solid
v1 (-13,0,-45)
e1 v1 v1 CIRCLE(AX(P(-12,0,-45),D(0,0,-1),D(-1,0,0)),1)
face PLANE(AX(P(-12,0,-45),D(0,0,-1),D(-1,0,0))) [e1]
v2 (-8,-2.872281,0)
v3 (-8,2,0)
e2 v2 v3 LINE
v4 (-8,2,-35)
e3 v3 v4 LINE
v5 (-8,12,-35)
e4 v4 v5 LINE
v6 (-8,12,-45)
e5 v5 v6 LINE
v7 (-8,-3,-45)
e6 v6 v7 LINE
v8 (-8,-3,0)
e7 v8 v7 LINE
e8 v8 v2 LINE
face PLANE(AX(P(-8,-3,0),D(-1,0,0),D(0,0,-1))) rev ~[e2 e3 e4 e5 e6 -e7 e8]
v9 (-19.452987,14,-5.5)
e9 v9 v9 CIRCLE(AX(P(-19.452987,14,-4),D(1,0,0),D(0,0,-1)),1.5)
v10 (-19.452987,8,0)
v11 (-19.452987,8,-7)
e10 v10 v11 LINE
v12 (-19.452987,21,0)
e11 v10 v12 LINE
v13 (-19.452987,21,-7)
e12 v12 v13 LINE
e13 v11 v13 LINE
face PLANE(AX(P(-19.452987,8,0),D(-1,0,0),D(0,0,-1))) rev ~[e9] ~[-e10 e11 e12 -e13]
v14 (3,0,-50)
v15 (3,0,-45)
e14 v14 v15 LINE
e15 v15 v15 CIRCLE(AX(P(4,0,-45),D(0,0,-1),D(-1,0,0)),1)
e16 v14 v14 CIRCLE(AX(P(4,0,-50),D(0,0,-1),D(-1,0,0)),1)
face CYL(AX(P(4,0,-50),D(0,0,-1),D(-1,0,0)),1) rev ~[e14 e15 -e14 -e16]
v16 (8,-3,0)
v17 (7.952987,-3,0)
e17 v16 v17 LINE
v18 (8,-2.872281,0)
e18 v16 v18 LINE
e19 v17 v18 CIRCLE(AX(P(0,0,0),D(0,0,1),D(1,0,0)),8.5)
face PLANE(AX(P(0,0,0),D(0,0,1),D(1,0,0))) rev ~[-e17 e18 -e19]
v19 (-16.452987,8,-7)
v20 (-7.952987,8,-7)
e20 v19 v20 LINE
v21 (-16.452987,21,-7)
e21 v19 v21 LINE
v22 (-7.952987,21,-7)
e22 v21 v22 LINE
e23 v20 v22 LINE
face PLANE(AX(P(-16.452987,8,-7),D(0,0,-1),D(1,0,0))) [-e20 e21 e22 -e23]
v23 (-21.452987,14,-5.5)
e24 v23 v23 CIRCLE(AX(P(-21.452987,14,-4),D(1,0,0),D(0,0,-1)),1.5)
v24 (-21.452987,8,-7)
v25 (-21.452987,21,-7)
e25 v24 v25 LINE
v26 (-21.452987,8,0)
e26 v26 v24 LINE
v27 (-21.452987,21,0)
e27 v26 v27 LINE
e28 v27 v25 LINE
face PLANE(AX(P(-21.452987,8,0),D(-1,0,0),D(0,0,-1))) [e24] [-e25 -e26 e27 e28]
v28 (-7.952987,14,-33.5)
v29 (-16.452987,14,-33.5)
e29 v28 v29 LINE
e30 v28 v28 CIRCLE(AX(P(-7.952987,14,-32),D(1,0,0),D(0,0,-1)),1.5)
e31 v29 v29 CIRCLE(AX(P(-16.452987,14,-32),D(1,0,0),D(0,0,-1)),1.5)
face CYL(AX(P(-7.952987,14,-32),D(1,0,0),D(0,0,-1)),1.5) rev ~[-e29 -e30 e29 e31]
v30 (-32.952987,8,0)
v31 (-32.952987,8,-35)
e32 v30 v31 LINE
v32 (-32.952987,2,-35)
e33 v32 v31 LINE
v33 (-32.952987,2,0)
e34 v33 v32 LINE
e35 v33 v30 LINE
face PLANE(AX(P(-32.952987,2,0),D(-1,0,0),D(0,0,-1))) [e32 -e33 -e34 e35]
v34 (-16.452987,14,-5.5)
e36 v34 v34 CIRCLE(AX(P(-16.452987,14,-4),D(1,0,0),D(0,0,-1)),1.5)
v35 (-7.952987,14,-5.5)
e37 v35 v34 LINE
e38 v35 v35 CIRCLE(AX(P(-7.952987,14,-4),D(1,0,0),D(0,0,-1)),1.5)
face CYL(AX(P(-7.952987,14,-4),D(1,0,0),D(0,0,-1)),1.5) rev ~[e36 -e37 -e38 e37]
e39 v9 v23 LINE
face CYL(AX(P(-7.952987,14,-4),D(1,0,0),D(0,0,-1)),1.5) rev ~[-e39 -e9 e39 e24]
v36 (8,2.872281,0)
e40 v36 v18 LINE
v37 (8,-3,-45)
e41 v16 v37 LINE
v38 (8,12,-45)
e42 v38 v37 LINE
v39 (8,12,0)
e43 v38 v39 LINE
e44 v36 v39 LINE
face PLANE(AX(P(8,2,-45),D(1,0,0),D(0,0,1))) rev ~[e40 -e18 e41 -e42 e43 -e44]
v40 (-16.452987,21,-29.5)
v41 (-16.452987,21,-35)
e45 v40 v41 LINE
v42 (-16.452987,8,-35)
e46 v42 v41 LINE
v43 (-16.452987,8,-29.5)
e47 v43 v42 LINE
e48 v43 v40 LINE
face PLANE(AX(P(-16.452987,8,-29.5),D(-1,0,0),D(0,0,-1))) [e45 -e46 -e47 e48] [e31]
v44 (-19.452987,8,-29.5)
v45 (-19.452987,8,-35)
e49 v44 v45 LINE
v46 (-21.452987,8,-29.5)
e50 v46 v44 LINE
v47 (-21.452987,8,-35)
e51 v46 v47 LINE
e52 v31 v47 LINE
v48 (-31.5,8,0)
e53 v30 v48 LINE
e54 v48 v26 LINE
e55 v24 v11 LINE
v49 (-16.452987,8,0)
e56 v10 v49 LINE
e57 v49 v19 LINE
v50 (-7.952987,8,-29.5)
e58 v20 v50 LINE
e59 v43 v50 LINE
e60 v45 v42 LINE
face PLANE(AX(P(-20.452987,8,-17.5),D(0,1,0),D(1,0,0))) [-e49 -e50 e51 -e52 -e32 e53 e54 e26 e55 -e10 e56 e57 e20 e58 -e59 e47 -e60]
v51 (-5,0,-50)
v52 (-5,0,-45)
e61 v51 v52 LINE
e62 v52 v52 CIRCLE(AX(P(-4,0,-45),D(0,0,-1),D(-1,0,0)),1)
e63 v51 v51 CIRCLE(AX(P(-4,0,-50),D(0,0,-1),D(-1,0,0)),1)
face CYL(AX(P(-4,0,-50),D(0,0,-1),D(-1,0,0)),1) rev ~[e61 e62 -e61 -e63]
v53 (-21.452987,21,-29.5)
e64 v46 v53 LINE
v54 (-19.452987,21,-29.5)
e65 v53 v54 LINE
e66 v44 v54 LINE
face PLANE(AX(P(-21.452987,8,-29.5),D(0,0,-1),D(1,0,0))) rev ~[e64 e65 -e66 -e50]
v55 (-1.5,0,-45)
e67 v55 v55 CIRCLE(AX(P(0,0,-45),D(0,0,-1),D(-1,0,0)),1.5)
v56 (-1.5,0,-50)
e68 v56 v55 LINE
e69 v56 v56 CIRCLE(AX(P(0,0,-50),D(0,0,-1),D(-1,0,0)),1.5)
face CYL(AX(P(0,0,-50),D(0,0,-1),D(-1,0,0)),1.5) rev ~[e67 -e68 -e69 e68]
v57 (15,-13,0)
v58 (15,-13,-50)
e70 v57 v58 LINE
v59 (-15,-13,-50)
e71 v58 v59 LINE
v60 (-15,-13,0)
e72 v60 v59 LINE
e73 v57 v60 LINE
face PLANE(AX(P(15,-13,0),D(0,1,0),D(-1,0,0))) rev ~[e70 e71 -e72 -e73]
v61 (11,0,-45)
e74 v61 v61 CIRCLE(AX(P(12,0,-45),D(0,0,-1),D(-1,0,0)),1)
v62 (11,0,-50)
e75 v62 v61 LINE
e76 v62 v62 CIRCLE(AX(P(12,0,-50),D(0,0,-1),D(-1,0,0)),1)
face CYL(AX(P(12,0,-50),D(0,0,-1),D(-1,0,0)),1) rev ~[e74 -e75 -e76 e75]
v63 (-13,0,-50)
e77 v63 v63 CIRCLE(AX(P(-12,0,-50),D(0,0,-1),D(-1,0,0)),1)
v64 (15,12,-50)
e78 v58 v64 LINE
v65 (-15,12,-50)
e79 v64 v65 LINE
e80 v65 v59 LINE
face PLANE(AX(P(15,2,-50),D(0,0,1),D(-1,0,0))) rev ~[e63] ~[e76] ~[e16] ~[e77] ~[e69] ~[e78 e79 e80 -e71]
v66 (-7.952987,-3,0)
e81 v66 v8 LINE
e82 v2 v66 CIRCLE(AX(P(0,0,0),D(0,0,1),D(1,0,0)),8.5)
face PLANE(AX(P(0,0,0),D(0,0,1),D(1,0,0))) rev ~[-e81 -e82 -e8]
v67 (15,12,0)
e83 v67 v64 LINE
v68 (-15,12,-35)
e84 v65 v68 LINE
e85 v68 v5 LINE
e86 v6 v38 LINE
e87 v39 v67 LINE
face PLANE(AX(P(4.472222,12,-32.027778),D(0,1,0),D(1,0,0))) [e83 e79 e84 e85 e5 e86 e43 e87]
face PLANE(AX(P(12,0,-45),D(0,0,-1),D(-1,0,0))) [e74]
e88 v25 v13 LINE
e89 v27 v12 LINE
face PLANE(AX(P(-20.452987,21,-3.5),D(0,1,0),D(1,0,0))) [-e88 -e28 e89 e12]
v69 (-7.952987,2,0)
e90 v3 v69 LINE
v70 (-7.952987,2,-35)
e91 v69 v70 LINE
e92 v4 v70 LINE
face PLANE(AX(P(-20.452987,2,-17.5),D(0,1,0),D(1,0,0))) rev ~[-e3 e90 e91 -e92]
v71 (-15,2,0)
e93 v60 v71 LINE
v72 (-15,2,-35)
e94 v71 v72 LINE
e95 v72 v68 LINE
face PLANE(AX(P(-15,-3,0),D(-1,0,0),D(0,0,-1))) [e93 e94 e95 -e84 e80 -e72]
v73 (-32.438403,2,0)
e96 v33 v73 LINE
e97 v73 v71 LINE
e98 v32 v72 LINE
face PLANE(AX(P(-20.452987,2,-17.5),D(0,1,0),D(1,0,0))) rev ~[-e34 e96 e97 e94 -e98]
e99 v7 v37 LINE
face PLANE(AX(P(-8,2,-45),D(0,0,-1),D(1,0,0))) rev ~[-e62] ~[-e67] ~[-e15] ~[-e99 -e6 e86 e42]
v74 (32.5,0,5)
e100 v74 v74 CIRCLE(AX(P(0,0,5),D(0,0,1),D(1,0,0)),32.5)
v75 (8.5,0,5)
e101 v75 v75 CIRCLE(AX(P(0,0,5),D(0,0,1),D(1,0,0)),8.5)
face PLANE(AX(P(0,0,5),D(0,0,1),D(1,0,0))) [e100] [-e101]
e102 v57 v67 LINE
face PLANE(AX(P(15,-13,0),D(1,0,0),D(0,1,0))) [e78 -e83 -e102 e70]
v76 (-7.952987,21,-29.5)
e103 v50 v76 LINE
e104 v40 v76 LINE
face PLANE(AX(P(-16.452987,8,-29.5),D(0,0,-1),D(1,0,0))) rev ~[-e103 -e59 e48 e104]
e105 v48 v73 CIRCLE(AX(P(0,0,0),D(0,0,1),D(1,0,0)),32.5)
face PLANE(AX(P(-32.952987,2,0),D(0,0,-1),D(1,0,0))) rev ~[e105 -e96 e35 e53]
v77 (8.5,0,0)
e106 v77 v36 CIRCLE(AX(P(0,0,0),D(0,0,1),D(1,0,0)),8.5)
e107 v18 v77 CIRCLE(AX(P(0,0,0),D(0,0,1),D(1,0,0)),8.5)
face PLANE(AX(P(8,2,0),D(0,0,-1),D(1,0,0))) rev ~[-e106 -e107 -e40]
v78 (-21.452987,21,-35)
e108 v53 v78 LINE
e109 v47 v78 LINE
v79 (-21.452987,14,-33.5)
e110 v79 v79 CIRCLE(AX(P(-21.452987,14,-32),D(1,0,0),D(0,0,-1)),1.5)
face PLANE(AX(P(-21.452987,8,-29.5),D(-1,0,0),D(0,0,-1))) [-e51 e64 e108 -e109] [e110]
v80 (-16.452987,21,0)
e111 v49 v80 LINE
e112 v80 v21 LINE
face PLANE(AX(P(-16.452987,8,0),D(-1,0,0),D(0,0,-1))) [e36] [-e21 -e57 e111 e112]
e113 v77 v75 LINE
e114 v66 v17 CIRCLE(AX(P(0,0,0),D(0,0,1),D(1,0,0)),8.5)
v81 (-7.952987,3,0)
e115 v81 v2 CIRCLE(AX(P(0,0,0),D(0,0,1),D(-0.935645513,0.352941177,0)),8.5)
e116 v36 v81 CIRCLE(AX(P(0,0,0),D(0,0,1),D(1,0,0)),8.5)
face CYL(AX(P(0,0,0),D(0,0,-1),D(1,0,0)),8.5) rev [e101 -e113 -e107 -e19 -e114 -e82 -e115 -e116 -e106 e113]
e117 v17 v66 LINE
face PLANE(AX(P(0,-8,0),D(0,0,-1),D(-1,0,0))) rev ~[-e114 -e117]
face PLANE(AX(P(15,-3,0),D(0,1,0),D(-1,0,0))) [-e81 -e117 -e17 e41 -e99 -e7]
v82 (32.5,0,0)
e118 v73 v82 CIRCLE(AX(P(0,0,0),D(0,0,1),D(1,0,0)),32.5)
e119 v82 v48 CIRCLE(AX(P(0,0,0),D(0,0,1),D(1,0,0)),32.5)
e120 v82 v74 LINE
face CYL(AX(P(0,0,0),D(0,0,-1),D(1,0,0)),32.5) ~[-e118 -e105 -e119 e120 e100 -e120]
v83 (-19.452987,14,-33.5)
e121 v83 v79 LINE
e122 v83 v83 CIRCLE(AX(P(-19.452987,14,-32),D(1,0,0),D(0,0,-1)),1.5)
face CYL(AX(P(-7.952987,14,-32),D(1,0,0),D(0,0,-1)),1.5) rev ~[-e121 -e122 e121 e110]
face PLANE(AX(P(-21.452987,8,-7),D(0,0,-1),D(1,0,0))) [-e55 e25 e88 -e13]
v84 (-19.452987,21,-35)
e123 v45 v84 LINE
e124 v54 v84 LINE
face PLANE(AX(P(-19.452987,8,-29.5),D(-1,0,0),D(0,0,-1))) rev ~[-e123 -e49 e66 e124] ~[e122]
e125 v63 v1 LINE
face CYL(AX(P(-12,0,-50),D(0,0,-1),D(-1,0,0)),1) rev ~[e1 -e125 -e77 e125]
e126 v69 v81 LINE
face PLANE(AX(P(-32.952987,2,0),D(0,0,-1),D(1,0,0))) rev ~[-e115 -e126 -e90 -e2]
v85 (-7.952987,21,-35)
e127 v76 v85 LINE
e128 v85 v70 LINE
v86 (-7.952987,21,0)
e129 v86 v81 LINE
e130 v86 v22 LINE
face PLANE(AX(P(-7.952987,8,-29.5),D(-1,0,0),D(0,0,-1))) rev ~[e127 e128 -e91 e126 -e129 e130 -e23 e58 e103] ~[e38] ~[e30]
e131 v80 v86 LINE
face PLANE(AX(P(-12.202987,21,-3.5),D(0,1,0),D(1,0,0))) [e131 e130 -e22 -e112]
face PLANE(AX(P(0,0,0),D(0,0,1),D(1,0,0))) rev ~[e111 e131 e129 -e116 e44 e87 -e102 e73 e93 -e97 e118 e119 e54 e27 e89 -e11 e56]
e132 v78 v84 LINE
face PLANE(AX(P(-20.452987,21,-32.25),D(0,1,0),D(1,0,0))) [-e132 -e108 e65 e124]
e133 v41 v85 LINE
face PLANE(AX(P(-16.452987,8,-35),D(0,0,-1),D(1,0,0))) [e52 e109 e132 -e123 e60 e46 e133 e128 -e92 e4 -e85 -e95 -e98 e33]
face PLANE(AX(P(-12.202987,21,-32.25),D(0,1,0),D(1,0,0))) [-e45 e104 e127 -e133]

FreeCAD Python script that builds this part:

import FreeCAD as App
import Part
import Sketcher
from FreeCAD import Vector


def add_polygon(sketch, points):
    """Adds a closed chain of lines whose ends are joined by coincident constraints."""
    first, n = sketch.GeometryCount, len(points)
    for a, b in zip(points, points[1:] + points[:1]):
        sketch.addGeometry(Part.LineSegment(App.Vector(*a, 0), App.Vector(*b, 0)), False)
    for i in range(n):
        sketch.addConstraint(Sketcher.Constraint("Coincident", first + i, 2, first + (i + 1) % n, 1))

doc = App.newDocument("Part")
body = doc.addObject("PartDesign::Body", "Body")

# Sketch on XY plane
sketch1 = body.newObject("Sketcher::SketchObject", "Sketch")
sketch1.AttachmentSupport = (doc.getObject("XY_Plane"), [""])
sketch1.MapMode = "FlatFace"
sketch1.addGeometry(Part.Circle(Vector(0, 0, 0), Vector(0, 0, 1), 32), False)
sketch1.addGeometry(Part.Circle(Vector(0, 0, 0), Vector(0, 0, 1), 8), False)
sketch1.addConstraint(Sketcher.Constraint("Coincident", 0, 3, -1, 1))
sketch1.addConstraint(Sketcher.Constraint("Coincident", 1, 3, -1, 1))
sketch1.addConstraint(Sketcher.Constraint("Diameter", 0, 65.0))
sketch1.addConstraint(Sketcher.Constraint("Diameter", 1, 17.0))
pad1 = body.newObject("PartDesign::Pad", "Pad")
pad1.Profile = sketch1
pad1.Length = 5

# Sketch on XY plane
sketch2 = body.newObject("Sketcher::SketchObject", "Sketch001")
sketch2.AttachmentSupport = (doc.getObject("XY_Plane"), [""])
sketch2.MapMode = "FlatFace"
add_polygon(sketch2, [(15, -3), (15, -13), (-15, -13), (-15, -3)])  # lines 0-3
sketch2.addConstraint(Sketcher.Constraint("Vertical", 0))
sketch2.addConstraint(Sketcher.Constraint("Horizontal", 1))
sketch2.addConstraint(Sketcher.Constraint("Vertical", 2))
sketch2.addConstraint(Sketcher.Constraint("Horizontal", 3))
sketch2.addConstraint(Sketcher.Constraint("DistanceX", 1, 2, 1, 1, 30.0))
sketch2.addConstraint(Sketcher.Constraint("DistanceY", 0, 2, 0, 1, 10.0))
sketch2.addConstraint(Sketcher.Constraint("DistanceX", -1, 1, 0, 2, 15.0))
sketch2.addConstraint(Sketcher.Constraint("DistanceY", 0, 2, -1, 1, 13.0))
pad2 = body.newObject("PartDesign::Pad", "Pad001")
pad2.Profile = sketch2
pad2.Length = 50
pad2.Reversed = True

# Sketch on XZ plane
sketch3 = body.newObject("Sketcher::SketchObject", "Sketch002")
sketch3.AttachmentSupport = (doc.getObject("XZ_Plane"), [""])
sketch3.MapMode = "FlatFace"
sketch3.AttachmentOffset = App.Placement(Vector(0, 0, 3), App.Rotation())
add_polygon(sketch3, [(-15, -50), (-15, 0), (-8, 0), (-8, -50)])  # lines 0-3
add_polygon(sketch3, [(8, -50), (8, 0), (15, 0), (15, -50)])  # lines 4-7
sketch3.addConstraint(Sketcher.Constraint("Vertical", 0))
sketch3.addConstraint(Sketcher.Constraint("Horizontal", 1))
sketch3.addConstraint(Sketcher.Constraint("Vertical", 2))
sketch3.addConstraint(Sketcher.Constraint("Horizontal", 3))
sketch3.addConstraint(Sketcher.Constraint("Vertical", 4))
sketch3.addConstraint(Sketcher.Constraint("Horizontal", 5))
sketch3.addConstraint(Sketcher.Constraint("Vertical", 6))
sketch3.addConstraint(Sketcher.Constraint("Horizontal", 7))
sketch3.addConstraint(Sketcher.Constraint("Symmetric", 1, 2, 4, 2, -1, 1))
sketch3.addConstraint(Sketcher.Constraint("Symmetric", 0, 2, 5, 2, -2))
sketch3.addConstraint(Sketcher.Constraint("Horizontal", 3, 2, 6, 2))
sketch3.addConstraint(Sketcher.Constraint("DistanceX", 1, 1, 1, 2, 7.0))
sketch3.addConstraint(Sketcher.Constraint("DistanceY", 0, 1, 0, 2, 50.0))
sketch3.addConstraint(Sketcher.Constraint("DistanceX", 0, 2, -1, 1, 15.0))
pad3 = body.newObject("PartDesign::Pad", "Pad002")
pad3.Profile = sketch3
pad3.Length = 5
pad3.Reversed = True

# Sketch on XZ plane
sketch4 = body.newObject("Sketcher::SketchObject", "Sketch003")
sketch4.AttachmentSupport = (doc.getObject("XZ_Plane"), [""])
sketch4.MapMode = "FlatFace"
sketch4.AttachmentOffset = App.Placement(Vector(0, 0, -2), App.Rotation())
add_polygon(sketch4, [(-33, -35), (-33, 0), (-8, 0), (-8, -35)])  # lines 0-3
sketch4.addConstraint(Sketcher.Constraint("Vertical", 0))
sketch4.addConstraint(Sketcher.Constraint("Horizontal", 1))
sketch4.addConstraint(Sketcher.Constraint("Vertical", 2))
sketch4.addConstraint(Sketcher.Constraint("Horizontal", 3))
sketch4.addConstraint(Sketcher.Constraint("PointOnObject", 0, 2, -1))
sketch4.addConstraint(Sketcher.Constraint("DistanceX", 1, 1, 1, 2, 25.0))
sketch4.addConstraint(Sketcher.Constraint("DistanceY", 0, 1, 0, 2, 35.0))
sketch4.addConstraint(Sketcher.Constraint("DistanceX", 0, 2, -1, 1, 32.952987))
pad4 = body.newObject("PartDesign::Pad", "Pad003")
pad4.Profile = sketch4
pad4.Length = 6
pad4.Reversed = True

# Sketch on XZ plane
sketch5 = body.newObject("Sketcher::SketchObject", "Sketch004")
sketch5.AttachmentSupport = (doc.getObject("XZ_Plane"), [""])
sketch5.MapMode = "FlatFace"
sketch5.AttachmentOffset = App.Placement(Vector(0, 0, -8), App.Rotation())
add_polygon(sketch5, [(-16.5, -35), (-16.5, -29.5), (-8, -29.5), (-8, -35)])  # lines 0-3
add_polygon(sketch5, [(-21.5, -35), (-21.5, -29.5), (-19.5, -29.5), (-19.5, -35)])  # lines 4-7
add_polygon(sketch5, [(-16.5, -7), (-16.5, 0), (-8, 0), (-8, -7)])  # lines 8-11
add_polygon(sketch5, [(-21.5, -7), (-21.5, 0), (-19.5, 0), (-19.5, -7)])  # lines 12-15
sketch5.addConstraint(Sketcher.Constraint("Vertical", 0))
sketch5.addConstraint(Sketcher.Constraint("Horizontal", 1))
sketch5.addConstraint(Sketcher.Constraint("Vertical", 2))
sketch5.addConstraint(Sketcher.Constraint("Horizontal", 3))
sketch5.addConstraint(Sketcher.Constraint("Vertical", 4))
sketch5.addConstraint(Sketcher.Constraint("Horizontal", 5))
sketch5.addConstraint(Sketcher.Constraint("Vertical", 6))
sketch5.addConstraint(Sketcher.Constraint("Horizontal", 7))
sketch5.addConstraint(Sketcher.Constraint("Vertical", 8))
sketch5.addConstraint(Sketcher.Constraint("Horizontal", 9))
sketch5.addConstraint(Sketcher.Constraint("Vertical", 10))
sketch5.addConstraint(Sketcher.Constraint("Horizontal", 11))
sketch5.addConstraint(Sketcher.Constraint("Vertical", 12))
sketch5.addConstraint(Sketcher.Constraint("Horizontal", 13))
sketch5.addConstraint(Sketcher.Constraint("Vertical", 14))
sketch5.addConstraint(Sketcher.Constraint("Horizontal", 15))
sketch5.addConstraint(Sketcher.Constraint("PointOnObject", 8, 2, -1))
sketch5.addConstraint(Sketcher.Constraint("PointOnObject", 12, 2, -1))
sketch5.addConstraint(Sketcher.Constraint("Horizontal", 1, 2, 4, 2))
sketch5.addConstraint(Sketcher.Constraint("Horizontal", 3, 2, 6, 2))
sketch5.addConstraint(Sketcher.Constraint("Horizontal", 11, 2, 14, 2))
sketch5.addConstraint(Sketcher.Constraint("Vertical", 3, 2, 8, 2))
sketch5.addConstraint(Sketcher.Constraint("Vertical", 2, 2, 9, 2))
sketch5.addConstraint(Sketcher.Constraint("Vertical", 7, 2, 12, 2))
sketch5.addConstraint(Sketcher.Constraint("Vertical", 6, 2, 13, 2))
sketch5.addConstraint(Sketcher.Constraint("DistanceX", 5, 1, 5, 2, 2.0))
sketch5.addConstraint(Sketcher.Constraint("DistanceY", 8, 1, 8, 2, 7.0))
sketch5.addConstraint(Sketcher.Constraint("DistanceX", 1, 1, 1, 2, 8.5))
sketch5.addConstraint(Sketcher.Constraint("DistanceY", 0, 1, 0, 2, 5.5))
sketch5.addConstraint(Sketcher.Constraint("DistanceY", 2, 2, -1, 1, 35.0))
sketch5.addConstraint(Sketcher.Constraint("DistanceX", 4, 2, 0, 2, 5.0))
sketch5.addConstraint(Sketcher.Constraint("DistanceX", 0, 2, -1, 1, 16.452987))
pad5 = body.newObject("PartDesign::Pad", "Pad004")
pad5.Profile = sketch5
pad5.Length = 13
pad5.Reversed = True

# Sketch on YZ plane
sketch6 = body.newObject("Sketcher::SketchObject", "Sketch005")
sketch6.AttachmentSupport = (doc.getObject("YZ_Plane"), [""])
sketch6.MapMode = "FlatFace"
sketch6.AttachmentOffset = App.Placement(Vector(0, 0, -7.952987), App.Rotation())
sketch6.addGeometry(Part.Circle(Vector(14, -32, 0), Vector(0, 0, 1), 1.5), False)
sketch6.addGeometry(Part.Circle(Vector(14, -4, 0), Vector(0, 0, 1), 1.5), False)
sketch6.addConstraint(Sketcher.Constraint("Equal", 0, 1))
sketch6.addConstraint(Sketcher.Constraint("Vertical", 0, 3, 1, 3))
sketch6.addConstraint(Sketcher.Constraint("Diameter", 0, 3.0))
sketch6.addConstraint(Sketcher.Constraint("DistanceX", -1, 1, 0, 3, 14.0))
sketch6.addConstraint(Sketcher.Constraint("DistanceY", 0, 3, -1, 1, 32.0))
sketch6.addConstraint(Sketcher.Constraint("DistanceY", 1, 3, -1, 1, 4.0))
pocket1 = body.newObject("PartDesign::Pocket", "Pocket")
pocket1.Profile = sketch6
pocket1.Length = 20

# Sketch on XZ plane
sketch7 = body.newObject("Sketcher::SketchObject", "Sketch006")
sketch7.AttachmentSupport = (doc.getObject("XZ_Plane"), [""])
sketch7.MapMode = "FlatFace"
sketch7.AttachmentOffset = App.Placement(Vector(0, 0, 3), App.Rotation())
add_polygon(sketch7, [(-8, -50), (-8, -45), (8, -45), (8, -50)])  # lines 0-3
sketch7.addConstraint(Sketcher.Constraint("Vertical", 0))
sketch7.addConstraint(Sketcher.Constraint("Horizontal", 1))
sketch7.addConstraint(Sketcher.Constraint("Vertical", 2))
sketch7.addConstraint(Sketcher.Constraint("Horizontal", 3))
sketch7.addConstraint(Sketcher.Constraint("DistanceX", 1, 1, 1, 2, 16.0))
sketch7.addConstraint(Sketcher.Constraint("DistanceY", 0, 1, 0, 2, 5.0))
sketch7.addConstraint(Sketcher.Constraint("DistanceX", 0, 2, -1, 1, 8.0))
sketch7.addConstraint(Sketcher.Constraint("DistanceY", 0, 2, -1, 1, 45.0))
pad6 = body.newObject("PartDesign::Pad", "Pad005")
pad6.Profile = sketch7
pad6.Length = 5
pad6.Reversed = True

# Sketch on XZ plane
sketch8 = body.newObject("Sketcher::SketchObject", "Sketch007")
sketch8.AttachmentSupport = (doc.getObject("XZ_Plane"), [""])
sketch8.MapMode = "FlatFace"
sketch8.AttachmentOffset = App.Placement(Vector(0, 0, -2), App.Rotation())
add_polygon(sketch8, [(8, 0), (15, 0), (15, -50), (-15, -50), (-15, -35), (-8, -35), (-8, -45), (8, -45)])  # lines 0-7
sketch8.addConstraint(Sketcher.Constraint("Horizontal", 0))
sketch8.addConstraint(Sketcher.Constraint("Vertical", 1))
sketch8.addConstraint(Sketcher.Constraint("Horizontal", 2))
sketch8.addConstraint(Sketcher.Constraint("Vertical", 3))
sketch8.addConstraint(Sketcher.Constraint("Horizontal", 4))
sketch8.addConstraint(Sketcher.Constraint("Vertical", 5))
sketch8.addConstraint(Sketcher.Constraint("Horizontal", 6))
sketch8.addConstraint(Sketcher.Constraint("Vertical", 7))
sketch8.addConstraint(Sketcher.Constraint("PointOnObject", 0, 2, -1))
sketch8.addConstraint(Sketcher.Constraint("Equal", 0, 4))
sketch8.addConstraint(Sketcher.Constraint("DistanceX", 0, 1, 0, 2, 7.0))
sketch8.addConstraint(Sketcher.Constraint("DistanceX", 2, 2, 2, 1, 30.0))
sketch8.addConstraint(Sketcher.Constraint("DistanceY", 1, 2, 1, 1, 50.0))
sketch8.addConstraint(Sketcher.Constraint("DistanceY", 3, 1, 3, 2, 15.0))
sketch8.addConstraint(Sketcher.Constraint("DistanceY", 5, 2, 5, 1, 10.0))
sketch8.addConstraint(Sketcher.Constraint("DistanceX", -1, 1, 0, 2, 15.0))
pad7 = body.newObject("PartDesign::Pad", "Pad006")
pad7.Profile = sketch8
pad7.Length = 10
pad7.Reversed = True

# Sketch on XY plane
sketch9 = body.newObject("Sketcher::SketchObject", "Sketch008")
sketch9.AttachmentSupport = (doc.getObject("XY_Plane"), [""])
sketch9.MapMode = "FlatFace"
sketch9.AttachmentOffset = App.Placement(Vector(0, 0, -50), App.Rotation())
sketch9.addGeometry(Part.Circle(Vector(4, 0, 0), Vector(0, 0, 1), 1), False)
sketch9.addGeometry(Part.Circle(Vector(12, 0, 0), Vector(0, 0, 1), 1), False)
sketch9.addGeometry(Part.Circle(Vector(-4, 0, 0), Vector(0, 0, 1), 1), False)
sketch9.addGeometry(Part.Circle(Vector(-12, 0, 0), Vector(0, 0, 1), 1), False)
sketch9.addConstraint(Sketcher.Constraint("Equal", 0, 1))
sketch9.addConstraint(Sketcher.Constraint("Equal", 1, 2))
sketch9.addConstraint(Sketcher.Constraint("Equal", 2, 3))
sketch9.addConstraint(Sketcher.Constraint("Symmetric", 0, 3, 2, 3, -1, 1))
sketch9.addConstraint(Sketcher.Constraint("Symmetric", 1, 3, 3, 3, -1, 1))
sketch9.addConstraint(Sketcher.Constraint("PointOnObject", 0, 3, -1))
sketch9.addConstraint(Sketcher.Constraint("PointOnObject", 1, 3, -1))
sketch9.addConstraint(Sketcher.Constraint("Diameter", 0, 2.0))
sketch9.addConstraint(Sketcher.Constraint("DistanceX", -1, 1, 0, 3, 4.0))
sketch9.addConstraint(Sketcher.Constraint("DistanceX", -1, 1, 1, 3, 12.0))
pocket2 = body.newObject("PartDesign::Pocket", "Pocket001")
pocket2.Profile = sketch9
pocket2.Length = 5
pocket2.Reversed = True

# Sketch on XY plane
sketch10 = body.newObject("Sketcher::SketchObject", "Sketch009")
sketch10.AttachmentSupport = (doc.getObject("XY_Plane"), [""])
sketch10.MapMode = "FlatFace"
sketch10.AttachmentOffset = App.Placement(Vector(0, 0, -50), App.Rotation())
sketch10.addGeometry(Part.Circle(Vector(0, 0, 0), Vector(0, 0, 1), 1.5), False)
sketch10.addConstraint(Sketcher.Constraint("Coincident", 0, 3, -1, 1))
sketch10.addConstraint(Sketcher.Constraint("Diameter", 0, 3.0))
pocket3 = body.newObject("PartDesign::Pocket", "Pocket002")
pocket3.Profile = sketch10
pocket3.Length = 10
pocket3.Reversed = True

doc.recompute()
